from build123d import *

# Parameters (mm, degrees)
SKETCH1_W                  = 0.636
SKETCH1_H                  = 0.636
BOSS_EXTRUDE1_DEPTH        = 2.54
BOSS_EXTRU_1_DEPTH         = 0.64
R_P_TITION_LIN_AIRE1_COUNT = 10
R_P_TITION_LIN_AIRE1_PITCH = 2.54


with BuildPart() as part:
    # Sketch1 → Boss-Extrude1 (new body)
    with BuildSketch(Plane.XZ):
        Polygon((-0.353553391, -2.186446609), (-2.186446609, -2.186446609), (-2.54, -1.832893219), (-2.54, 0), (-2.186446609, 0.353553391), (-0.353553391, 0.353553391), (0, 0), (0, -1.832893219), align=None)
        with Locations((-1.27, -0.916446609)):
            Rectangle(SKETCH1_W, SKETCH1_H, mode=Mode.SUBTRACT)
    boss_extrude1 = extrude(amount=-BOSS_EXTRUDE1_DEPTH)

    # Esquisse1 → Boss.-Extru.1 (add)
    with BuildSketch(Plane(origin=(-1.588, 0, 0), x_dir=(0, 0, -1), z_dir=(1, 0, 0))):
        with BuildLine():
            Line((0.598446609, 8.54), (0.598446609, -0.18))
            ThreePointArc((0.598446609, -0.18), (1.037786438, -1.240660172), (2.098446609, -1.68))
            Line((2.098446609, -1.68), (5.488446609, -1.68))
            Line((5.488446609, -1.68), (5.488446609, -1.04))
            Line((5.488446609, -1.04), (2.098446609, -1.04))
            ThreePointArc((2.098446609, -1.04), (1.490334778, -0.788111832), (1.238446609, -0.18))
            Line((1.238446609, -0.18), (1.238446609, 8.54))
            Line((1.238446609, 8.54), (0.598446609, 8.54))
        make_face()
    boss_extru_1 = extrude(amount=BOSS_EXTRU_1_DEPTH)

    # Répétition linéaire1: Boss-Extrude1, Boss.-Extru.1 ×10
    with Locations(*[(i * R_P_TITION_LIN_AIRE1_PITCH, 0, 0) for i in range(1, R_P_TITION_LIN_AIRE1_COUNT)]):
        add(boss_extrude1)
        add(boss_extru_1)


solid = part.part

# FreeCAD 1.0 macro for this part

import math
import FreeCAD as App
import Part
import Sketcher
Q = App.Units.Quantity


def add_polygon(sketch, points):
    """Adds a closed chain of lines whose ends are joined by coincident constraints."""
    first, n = sketch.GeometryCount, len(points)
    for a, b in zip(points, points[1:] + points[:1]):
        sketch.addGeometry(Part.LineSegment(App.Vector(*a, 0), App.Vector(*b, 0)), False)
    for i in range(n):
        sketch.addConstraint(Sketcher.Constraint("Coincident", first + i, 2, first + (i + 1) % n, 1))

doc = App.newDocument("Part")
body = doc.addObject("PartDesign::Body", "Body")

sketch1 = body.newObject("Sketcher::SketchObject", "Sketch")
sketch1.AttachmentSupport = (doc.getObject("XZ_Plane"), [""])
sketch1.MapMode = "FlatFace"
add_polygon(sketch1, [(-2.19, -2.19), (-0.35, -2.19), (0, -1.83), (0, 0), (-0.35, 0.35), (-2.19, 0.35), (-2.54, 0), (-2.54, -1.83)])
add_polygon(sketch1, [(-1.59, -1.23), (-1.59, -0.6), (-0.95, -0.6), (-0.95, -1.23)])
sketch1.addConstraint(Sketcher.Constraint("Horizontal", 0))
sketch1.addConstraint(Sketcher.Constraint("Vertical", 2))
sketch1.addConstraint(Sketcher.Constraint("Horizontal", 4))
sketch1.addConstraint(Sketcher.Constraint("Vertical", 6))
sketch1.addConstraint(Sketcher.Constraint("Vertical", 8))
sketch1.addConstraint(Sketcher.Constraint("Horizontal", 9))
sketch1.addConstraint(Sketcher.Constraint("Vertical", 10))
sketch1.addConstraint(Sketcher.Constraint("Horizontal", 11))
sketch1.addConstraint(Sketcher.Constraint("Coincident", 2, 2, -1, 1))
sketch1.addConstraint(Sketcher.Constraint("PointOnObject", 5, 2, -1))
sketch1.addConstraint(Sketcher.Constraint("Perpendicular", 1, 3))
sketch1.addConstraint(Sketcher.Constraint("Perpendicular", 3, 5))
sketch1.addConstraint(Sketcher.Constraint("Perpendicular", 5, 7))
sketch1.addConstraint(Sketcher.Constraint("Horizontal", 1, 2, 6, 2))
sketch1.addConstraint(Sketcher.Constraint("Vertical", 0, 2, 3, 2))
sketch1.addConstraint(Sketcher.Constraint("Vertical", 4, 2, 7, 2))
sketch1.addConstraint(Sketcher.Constraint("Equal", 4, 2))
sketch1.addConstraint(Sketcher.Constraint("Equal", 11, 8))
sketch1.addConstraint(Sketcher.Constraint("Distance", 1, Q("0.5 mm")))
sketch1.addConstraint(Sketcher.Constraint("DistanceX", 9, 1, 9, 2, Q("0.636 mm")))
sketch1.addConstraint(Sketcher.Constraint("DistanceX", 5, 2, -1, 1, Q("2.54 mm")))
sketch1.addConstraint(Sketcher.Constraint("DistanceX", 8, 2, -1, 1, Q("1.588 mm")))
sketch1.addConstraint(Sketcher.Constraint("DistanceY", 8, 2, 4, 2, Q("0.952 mm")))
pad1 = body.newObject("PartDesign::Pad", "Pad")
pad1.Profile = sketch1
pad1.Length = 2.54
pad1.Reversed = True

sketch2 = body.newObject("Sketcher::SketchObject", "Sketch001")
sketch2.AttachmentSupport = (doc.getObject("YZ_Plane"), [""])
sketch2.MapMode = "FlatFace"
sketch2.AttachmentOffset = App.Placement(App.Vector(0, 0, -1.588), App.Rotation())
sketch2.addGeometry(Part.LineSegment(App.Vector(8.5, -0.6, 0), App.Vector(-0.2, -0.6, 0)), False)
sketch2.addGeometry(Part.ArcOfCircle(Part.Circle(App.Vector(-0.2, -2.1, 0), App.Vector(0, 0, 1), 1.5), math.radians(90), math.radians(180)), False)
sketch2.addGeometry(Part.LineSegment(App.Vector(-1.7, -2.1, 0), App.Vector(-1.7, -5.5, 0)), False)
sketch2.addGeometry(Part.LineSegment(App.Vector(-1.7, -5.5, 0), App.Vector(-1, -5.5, 0)), False)
sketch2.addGeometry(Part.LineSegment(App.Vector(-1, -5.5, 0), App.Vector(-1, -2.1, 0)), False)
sketch2.addGeometry(Part.ArcOfCircle(Part.Circle(App.Vector(-0.2, -2.1, 0), App.Vector(0, 0, 1), 0.9), math.radians(90), math.radians(180)), False)
sketch2.addGeometry(Part.LineSegment(App.Vector(-0.2, -1.2, 0), App.Vector(8.5, -1.2, 0)), False)
sketch2.addGeometry(Part.LineSegment(App.Vector(8.5, -1.2, 0), App.Vector(8.5, -0.6, 0)), False)
sketch2.addConstraint(Sketcher.Constraint("Tangent", 0, 2, 1, 1))
sketch2.addConstraint(Sketcher.Constraint("Tangent", 1, 2, 2, 1))
sketch2.addConstraint(Sketcher.Constraint("Coincident", 2, 2, 3, 1))
sketch2.addConstraint(Sketcher.Constraint("Coincident", 3, 2, 4, 1))
sketch2.addConstraint(Sketcher.Constraint("Tangent", 4, 2, 5, 2))
sketch2.addConstraint(Sketcher.Constraint("Tangent", 5, 1, 6, 1))
sketch2.addConstraint(Sketcher.Constraint("Coincident", 6, 2, 7, 1))
sketch2.addConstraint(Sketcher.Constraint("Coincident", 7, 2, 0, 1))
sketch2.addConstraint(Sketcher.Constraint("Horizontal", 0))
sketch2.addConstraint(Sketcher.Constraint("Vertical", 2))
sketch2.addConstraint(Sketcher.Constraint("Horizontal", 3))
sketch2.addConstraint(Sketcher.Constraint("Vertical", 4))
sketch2.addConstraint(Sketcher.Constraint("Horizontal", 6))
sketch2.addConstraint(Sketcher.Constraint("Vertical", 7))
sketch2.addConstraint(Sketcher.Constraint("Coincident", 5, 3, 1, 3))
sketch2.addConstraint(Sketcher.Constraint("Radius", 1, Q("1.5 mm")))
sketch2.addConstraint(Sketcher.Constraint("Radius", 5, Q("0.86 mm")))
sketch2.addConstraint(Sketcher.Constraint("DistanceX", 0, 2, 0, 1, Q("8.72 mm")))
sketch2.addConstraint(Sketcher.Constraint("DistanceY", 2, 2, 2, 1, Q("3.39 mm")))
sketch2.addConstraint(Sketcher.Constraint("DistanceX", 1, 3, -1, 1, Q("0.18 mm")))
sketch2.addConstraint(Sketcher.Constraint("DistanceY", 1, 3, -1, 1, Q("2.098447 mm")))
pad2 = body.newObject("PartDesign::Pad", "Pad001")
pad2.Profile = sketch2
pad2.Length = 0.64
doc.recompute()

linearpattern = body.newObject("PartDesign::LinearPattern", "LinearPattern")
linearpattern.Originals = [pad1, pad2]
linearpattern.Direction = (doc.getObject("X_Axis"), [""])
linearpattern.Mode = "offset"
linearpattern.Offset = 2.54
linearpattern.Occurrences = 10
body.Tip = linearpattern

doc.recompute()
